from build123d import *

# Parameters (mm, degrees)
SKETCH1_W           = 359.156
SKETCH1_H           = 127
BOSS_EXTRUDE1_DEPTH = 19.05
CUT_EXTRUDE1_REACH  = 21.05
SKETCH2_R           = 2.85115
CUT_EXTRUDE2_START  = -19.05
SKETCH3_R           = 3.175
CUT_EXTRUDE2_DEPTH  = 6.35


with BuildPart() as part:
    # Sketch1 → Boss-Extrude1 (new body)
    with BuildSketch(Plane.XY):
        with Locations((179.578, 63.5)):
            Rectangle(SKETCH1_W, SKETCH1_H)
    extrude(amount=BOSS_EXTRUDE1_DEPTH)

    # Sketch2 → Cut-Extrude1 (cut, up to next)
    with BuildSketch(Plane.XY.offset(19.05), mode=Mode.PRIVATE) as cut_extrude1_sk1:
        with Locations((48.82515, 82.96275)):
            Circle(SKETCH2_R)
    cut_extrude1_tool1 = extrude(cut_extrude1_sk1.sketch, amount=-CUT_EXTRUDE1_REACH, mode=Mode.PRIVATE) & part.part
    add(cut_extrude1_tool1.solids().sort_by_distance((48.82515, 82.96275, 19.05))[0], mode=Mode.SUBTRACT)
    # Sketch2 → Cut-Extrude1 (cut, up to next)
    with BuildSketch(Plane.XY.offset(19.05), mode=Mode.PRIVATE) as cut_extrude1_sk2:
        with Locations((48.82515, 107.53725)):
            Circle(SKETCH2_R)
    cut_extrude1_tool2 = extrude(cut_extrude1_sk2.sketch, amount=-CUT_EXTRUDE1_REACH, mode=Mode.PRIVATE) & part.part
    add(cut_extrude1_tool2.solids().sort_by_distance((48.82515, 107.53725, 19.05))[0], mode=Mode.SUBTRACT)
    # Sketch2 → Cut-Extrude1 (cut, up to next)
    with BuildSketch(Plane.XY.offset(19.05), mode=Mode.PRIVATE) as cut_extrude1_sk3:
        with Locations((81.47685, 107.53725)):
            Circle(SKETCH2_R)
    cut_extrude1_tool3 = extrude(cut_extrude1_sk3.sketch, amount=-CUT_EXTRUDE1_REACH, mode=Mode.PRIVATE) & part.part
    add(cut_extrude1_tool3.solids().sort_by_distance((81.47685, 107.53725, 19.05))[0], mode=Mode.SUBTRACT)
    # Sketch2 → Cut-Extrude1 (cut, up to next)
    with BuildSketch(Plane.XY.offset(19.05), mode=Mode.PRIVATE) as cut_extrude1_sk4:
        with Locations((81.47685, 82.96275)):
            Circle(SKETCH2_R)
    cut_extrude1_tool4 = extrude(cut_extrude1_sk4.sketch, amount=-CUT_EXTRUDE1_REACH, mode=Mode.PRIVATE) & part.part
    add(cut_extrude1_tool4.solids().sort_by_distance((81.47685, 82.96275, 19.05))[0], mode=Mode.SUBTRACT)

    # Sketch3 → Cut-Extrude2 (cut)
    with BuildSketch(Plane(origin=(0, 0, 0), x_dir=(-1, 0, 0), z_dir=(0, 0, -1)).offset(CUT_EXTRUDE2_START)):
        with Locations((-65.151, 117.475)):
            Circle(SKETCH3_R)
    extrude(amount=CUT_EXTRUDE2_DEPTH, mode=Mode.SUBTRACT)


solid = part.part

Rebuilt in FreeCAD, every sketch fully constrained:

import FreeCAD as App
import Part
import Sketcher
Q = App.Units.Quantity


def add_polygon(sketch, points):
    """Adds a closed chain of lines whose ends are joined by coincident constraints."""
    first, n = sketch.GeometryCount, len(points)
    for a, b in zip(points, points[1:] + points[:1]):
        sketch.addGeometry(Part.LineSegment(App.Vector(*a, 0), App.Vector(*b, 0)), False)
    for i in range(n):
        sketch.addConstraint(Sketcher.Constraint("Coincident", first + i, 2, first + (i + 1) % n, 1))

doc = App.newDocument("Part")
params = doc.addObject("Spreadsheet::Sheet", "Params")
for row, (alias, value) in enumerate([
    ("sketch1_height", "5 in"),
    ("sketch1_width", "14.14 in"),
    ("pad1_length", "0.75 in"),
    ("sketch6_diameter", "0.25 in"),
    ("pocket5_length", "0.25 in"),
], start=1):
    params.set(f"A{row}", alias)
    params.set(f"B{row}", "=" + value)
    params.setAlias(f"B{row}", alias)

body = doc.addObject("PartDesign::Body", "Body")

sketch1 = body.newObject("Sketcher::SketchObject", "Sketch")
sketch1.AttachmentSupport = (doc.getObject("XY_Plane"), [""])
sketch1.MapMode = "FlatFace"
add_polygon(sketch1, [(0, 127), (0, 0), (359, 0), (359, 127)])
sketch1.addConstraint([
    Sketcher.Constraint("Vertical", 0),
    Sketcher.Constraint("Horizontal", 1),
    Sketcher.Constraint("Vertical", 2),
    Sketcher.Constraint("Horizontal", 3),
    Sketcher.Constraint("Coincident", 0, 2, -1, 1),
    Sketcher.Constraint("DistanceY", 0, 2, 0, 1, Q("5 in")),
    Sketcher.Constraint("DistanceX", 1, 1, 1, 2, Q("14.14 in")),
])
sketch1.setExpression("Constraints[9]", "Params.sketch1_height")
sketch1.setExpression("Constraints[10]", "Params.sketch1_width")
pad1 = body.newObject("PartDesign::Pad", "Pad")
pad1.Profile = sketch1
pad1.setExpression("Length", "Params.pad1_length")

sketch2 = body.newObject("Sketcher::SketchObject", "Sketch001")
sketch2.AttachmentSupport = (doc.getObject("XY_Plane"), [""])
sketch2.MapMode = "FlatFace"
sketch2.AttachmentOffset = App.Placement(App.Vector(0, 0, 0.75 * 25.4), App.Rotation())
sketch2.addGeometry(Part.Circle(App.Vector(48.8, 83, 0), App.Vector(0, 0, 1), 2.9), False)
sketch2.addConstraint([
    Sketcher.Constraint("Diameter", 0, Q("0.2245 in")),
    Sketcher.Constraint("DistanceX", -1, 1, 0, 3, Q("48.82515 mm")),
    Sketcher.Constraint("DistanceY", -1, 1, 0, 3, Q("82.96275 mm")),
])
pocket1 = body.newObject("PartDesign::Pocket", "Pocket")
pocket1.Profile = sketch2
pocket1.Type = "UpToFirst"

sketch3 = body.newObject("Sketcher::SketchObject", "Sketch002")
sketch3.AttachmentSupport = (doc.getObject("XY_Plane"), [""])
sketch3.MapMode = "FlatFace"
sketch3.AttachmentOffset = App.Placement(App.Vector(0, 0, 0.75 * 25.4), App.Rotation())
sketch3.addGeometry(Part.Circle(App.Vector(48.8, 107.5, 0), App.Vector(0, 0, 1), 2.9), False)
sketch3.addConstraint([
    Sketcher.Constraint("Diameter", 0, Q("0.2245 in")),
    Sketcher.Constraint("DistanceX", -1, 1, 0, 3, Q("48.82515 mm")),
    Sketcher.Constraint("DistanceY", -1, 1, 0, 3, Q("107.53725 mm")),
])
pocket2 = body.newObject("PartDesign::Pocket", "Pocket001")
pocket2.Profile = sketch3
pocket2.Type = "UpToFirst"

sketch4 = body.newObject("Sketcher::SketchObject", "Sketch003")
sketch4.AttachmentSupport = (doc.getObject("XY_Plane"), [""])
sketch4.MapMode = "FlatFace"
sketch4.AttachmentOffset = App.Placement(App.Vector(0, 0, 0.75 * 25.4), App.Rotation())
sketch4.addGeometry(Part.Circle(App.Vector(81.5, 107.5, 0), App.Vector(0, 0, 1), 2.9), False)
sketch4.addConstraint([
    Sketcher.Constraint("Diameter", 0, Q("0.2245 in")),
    Sketcher.Constraint("DistanceX", -1, 1, 0, 3, Q("81.47685 mm")),
    Sketcher.Constraint("DistanceY", -1, 1, 0, 3, Q("107.53725 mm")),
])
pocket3 = body.newObject("PartDesign::Pocket", "Pocket002")
pocket3.Profile = sketch4
pocket3.Type = "UpToFirst"

sketch5 = body.newObject("Sketcher::SketchObject", "Sketch004")
sketch5.AttachmentSupport = (doc.getObject("XY_Plane"), [""])
sketch5.MapMode = "FlatFace"
sketch5.AttachmentOffset = App.Placement(App.Vector(0, 0, 0.75 * 25.4), App.Rotation())
sketch5.addGeometry(Part.Circle(App.Vector(81.5, 83, 0), App.Vector(0, 0, 1), 2.9), False)
sketch5.addConstraint([
    Sketcher.Constraint("Diameter", 0, Q("0.2245 in")),
    Sketcher.Constraint("DistanceX", -1, 1, 0, 3, Q("81.47685 mm")),
    Sketcher.Constraint("DistanceY", -1, 1, 0, 3, Q("82.96275 mm")),
])
pocket4 = body.newObject("PartDesign::Pocket", "Pocket003")
pocket4.Profile = sketch5
pocket4.Type = "UpToFirst"

sketch6 = body.newObject("Sketcher::SketchObject", "Sketch005")
sketch6.AttachmentSupport = (doc.getObject("XY_Plane"), [""])
sketch6.MapMode = "FlatFace"
sketch6.AttachmentOffset = App.Placement(App.Vector(0, 0, 0.75 * 25.4), App.Rotation())
sketch6.addGeometry(Part.Circle(App.Vector(65.2, 117.5, 0), App.Vector(0, 0, 1), 3.2), False)
sketch6.addConstraint([
    Sketcher.Constraint("Diameter", 0, Q("0.25 in")),
    Sketcher.Constraint("DistanceX", -1, 1, 0, 3, Q("2.565 in")),
    Sketcher.Constraint("DistanceY", -1, 1, 0, 3, Q("4.625 in")),
])
sketch6.setExpression("Constraints[0]", "Params.sketch6_diameter")
pocket5 = body.newObject("PartDesign::Pocket", "Pocket004")
pocket5.Profile = sketch6
pocket5.setExpression("Length", "Params.pocket5_length")

doc.recompute()
